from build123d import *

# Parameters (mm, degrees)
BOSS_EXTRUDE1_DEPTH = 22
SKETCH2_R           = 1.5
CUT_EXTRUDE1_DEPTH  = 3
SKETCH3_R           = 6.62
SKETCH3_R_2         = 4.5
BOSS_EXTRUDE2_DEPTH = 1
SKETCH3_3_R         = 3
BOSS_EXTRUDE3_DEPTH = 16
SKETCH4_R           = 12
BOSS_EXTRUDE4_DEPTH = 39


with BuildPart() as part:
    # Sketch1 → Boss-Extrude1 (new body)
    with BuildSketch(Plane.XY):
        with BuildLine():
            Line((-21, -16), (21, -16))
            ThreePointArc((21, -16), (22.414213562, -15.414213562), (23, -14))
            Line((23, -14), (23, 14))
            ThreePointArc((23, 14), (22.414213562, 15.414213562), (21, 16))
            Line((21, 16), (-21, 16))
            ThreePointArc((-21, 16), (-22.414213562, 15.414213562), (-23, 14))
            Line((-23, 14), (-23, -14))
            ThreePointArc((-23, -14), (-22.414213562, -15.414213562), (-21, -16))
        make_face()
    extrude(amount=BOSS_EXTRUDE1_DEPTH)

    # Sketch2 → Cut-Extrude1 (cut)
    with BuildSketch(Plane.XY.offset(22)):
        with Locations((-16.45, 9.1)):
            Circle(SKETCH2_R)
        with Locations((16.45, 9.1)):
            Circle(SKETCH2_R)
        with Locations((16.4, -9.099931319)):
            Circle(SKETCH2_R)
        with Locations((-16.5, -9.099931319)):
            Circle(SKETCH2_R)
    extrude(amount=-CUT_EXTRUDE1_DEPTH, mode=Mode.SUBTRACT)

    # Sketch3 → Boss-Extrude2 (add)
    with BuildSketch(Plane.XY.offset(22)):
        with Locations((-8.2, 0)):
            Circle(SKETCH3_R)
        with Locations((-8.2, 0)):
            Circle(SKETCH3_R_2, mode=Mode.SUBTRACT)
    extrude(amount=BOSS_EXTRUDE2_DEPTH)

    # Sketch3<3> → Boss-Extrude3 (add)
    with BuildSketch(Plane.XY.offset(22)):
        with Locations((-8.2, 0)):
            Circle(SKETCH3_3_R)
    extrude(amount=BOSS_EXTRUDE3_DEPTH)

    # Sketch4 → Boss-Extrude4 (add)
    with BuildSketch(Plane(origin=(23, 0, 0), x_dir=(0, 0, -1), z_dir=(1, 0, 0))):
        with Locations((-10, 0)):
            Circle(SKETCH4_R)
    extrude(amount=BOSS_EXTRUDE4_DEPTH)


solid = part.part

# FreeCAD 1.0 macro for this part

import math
import FreeCAD as App
import Part
import Sketcher

doc = App.newDocument("Part")
body = doc.addObject("PartDesign::Body", "Body")

# Sketch on XY plane
sketch1 = doc.addObject("Sketcher::SketchObject", "Sketch")
body.addObject(sketch1)
sketch1.AttachmentSupport = (doc.XY_Plane, [""])
sketch1.MapMode = "FlatFace"
sketch1.addGeometry(Part.LineSegment(App.Vector(-21, -16, 0), App.Vector(21, -16, 0)), False)
sketch1.addGeometry(Part.ArcOfCircle(Part.Circle(App.Vector(21, -14, 0), App.Vector(0, 0, 1), 2), math.radians(-90), math.radians(0)), False)
sketch1.addGeometry(Part.LineSegment(App.Vector(23, -14, 0), App.Vector(23, 14, 0)), False)
sketch1.addGeometry(Part.ArcOfCircle(Part.Circle(App.Vector(21, 14, 0), App.Vector(0, 0, 1), 2), math.radians(0), math.radians(90)), False)
sketch1.addGeometry(Part.LineSegment(App.Vector(21, 16, 0), App.Vector(-21, 16, 0)), False)
sketch1.addGeometry(Part.ArcOfCircle(Part.Circle(App.Vector(-21, 14, 0), App.Vector(0, 0, 1), 2), math.radians(90), math.radians(180)), False)
sketch1.addGeometry(Part.LineSegment(App.Vector(-23, 14, 0), App.Vector(-23, -14, 0)), False)
sketch1.addGeometry(Part.ArcOfCircle(Part.Circle(App.Vector(-21, -14, 0), App.Vector(0, 0, 1), 2), math.radians(-180), math.radians(-90)), False)
sketch1.addConstraint(Sketcher.Constraint("Tangent", 0, 2, 1, 1))
sketch1.addConstraint(Sketcher.Constraint("Tangent", 1, 2, 2, 1))
sketch1.addConstraint(Sketcher.Constraint("Tangent", 2, 2, 3, 1))
sketch1.addConstraint(Sketcher.Constraint("Tangent", 3, 2, 4, 1))
sketch1.addConstraint(Sketcher.Constraint("Tangent", 4, 2, 5, 1))
sketch1.addConstraint(Sketcher.Constraint("Tangent", 5, 2, 6, 1))
sketch1.addConstraint(Sketcher.Constraint("Tangent", 6, 2, 7, 1))
sketch1.addConstraint(Sketcher.Constraint("Tangent", 7, 2, 0, 1))
sketch1.addConstraint(Sketcher.Constraint("Horizontal", 0))
sketch1.addConstraint(Sketcher.Constraint("Vertical", 2))
sketch1.addConstraint(Sketcher.Constraint("Horizontal", 4))
sketch1.addConstraint(Sketcher.Constraint("Vertical", 6))
sketch1.addConstraint(Sketcher.Constraint("Equal", 1, 3))
sketch1.addConstraint(Sketcher.Constraint("Equal", 3, 5))
sketch1.addConstraint(Sketcher.Constraint("Equal", 5, 7))
sketch1.addConstraint(Sketcher.Constraint("Symmetric", 1, 3, 5, 3, -1, 1))
sketch1.addConstraint(Sketcher.Constraint("Radius", 1, 2.0))
sketch1.addConstraint(Sketcher.Constraint("DistanceX", 0, 1, 0, 2, 42.0))
sketch1.addConstraint(Sketcher.Constraint("DistanceY", 2, 1, 2, 2, 28.0))
pad1 = doc.addObject("PartDesign::Pad", "Pad")
body.addObject(pad1)
pad1.Profile = sketch1
pad1.Length = 22

# Sketch on XY plane
sketch2 = doc.addObject("Sketcher::SketchObject", "Sketch001")
body.addObject(sketch2)
sketch2.AttachmentSupport = (doc.XY_Plane, [""])
sketch2.MapMode = "FlatFace"
sketch2.AttachmentOffset = App.Placement(App.Vector(0, 0, 22), App.Rotation())
sketch2.addGeometry(Part.Circle(App.Vector(-16.4, 9.1, 0), App.Vector(0, 0, 1), 1.5), False)
sketch2.addGeometry(Part.Circle(App.Vector(16.4, 9.1, 0), App.Vector(0, 0, 1), 1.5), False)
sketch2.addGeometry(Part.Circle(App.Vector(16.4, -9.1, 0), App.Vector(0, 0, 1), 1.5), False)
sketch2.addGeometry(Part.Circle(App.Vector(-16.5, -9.1, 0), App.Vector(0, 0, 1), 1.5), False)
sketch2.addConstraint(Sketcher.Constraint("Equal", 0, 1))
sketch2.addConstraint(Sketcher.Constraint("Equal", 1, 2))
sketch2.addConstraint(Sketcher.Constraint("Equal", 2, 3))
sketch2.addConstraint(Sketcher.Constraint("Symmetric", 0, 3, 1, 3, -2))
sketch2.addConstraint(Sketcher.Constraint("Horizontal", 2, 3, 3, 3))
sketch2.addConstraint(Sketcher.Constraint("Diameter", 0, 3.0))
sketch2.addConstraint(Sketcher.Constraint("DistanceY", -1, 1, 0, 3, 9.1))
sketch2.addConstraint(Sketcher.Constraint("DistanceX", -1, 1, 2, 3, 16.4))
sketch2.addConstraint(Sketcher.Constraint("DistanceX", 3, 3, -1, 1, 16.5))
sketch2.addConstraint(Sketcher.Constraint("DistanceX", 0, 3, 1, 3, 32.9))
sketch2.addConstraint(Sketcher.Constraint("DistanceY", 2, 3, -1, 1, 9.099931))
pocket1 = doc.addObject("PartDesign::Pocket", "Pocket")
body.addObject(pocket1)
pocket1.Profile = sketch2
pocket1.Length = 3

# Sketch on XY plane
sketch3 = doc.addObject("Sketcher::SketchObject", "Sketch002")
body.addObject(sketch3)
sketch3.AttachmentSupport = (doc.XY_Plane, [""])
sketch3.MapMode = "FlatFace"
sketch3.AttachmentOffset = App.Placement(App.Vector(0, 0, 22), App.Rotation())
sketch3.addGeometry(Part.Circle(App.Vector(-8.2, 0, 0), App.Vector(0, 0, 1), 6.6), False)
sketch3.addGeometry(Part.Circle(App.Vector(-8.2, 0, 0), App.Vector(0, 0, 1), 4.5), False)
sketch3.addConstraint(Sketcher.Constraint("Coincident", 1, 3, 0, 3))
sketch3.addConstraint(Sketcher.Constraint("PointOnObject", 0, 3, -1))
sketch3.addConstraint(Sketcher.Constraint("Diameter", 1, 9.0))
sketch3.addConstraint(Sketcher.Constraint("Diameter", 0, 13.24))
sketch3.addConstraint(Sketcher.Constraint("DistanceX", 0, 3, -1, 1, 8.2))
pad2 = doc.addObject("PartDesign::Pad", "Pad001")
body.addObject(pad2)
pad2.Profile = sketch3
pad2.Length = 1

# Sketch on XY plane
sketch4 = doc.addObject("Sketcher::SketchObject", "Sketch003")
body.addObject(sketch4)
sketch4.AttachmentSupport = (doc.XY_Plane, [""])
sketch4.MapMode = "FlatFace"
sketch4.AttachmentOffset = App.Placement(App.Vector(0, 0, 22), App.Rotation())
sketch4.addGeometry(Part.Circle(App.Vector(-8.2, 0, 0), App.Vector(0, 0, 1), 3), False)
sketch4.addConstraint(Sketcher.Constraint("PointOnObject", 0, 3, -1))
sketch4.addConstraint(Sketcher.Constraint("Diameter", 0, 6.0))
sketch4.addConstraint(Sketcher.Constraint("DistanceX", 0, 3, -1, 1, 8.2))
pad3 = doc.addObject("PartDesign::Pad", "Pad002")
body.addObject(pad3)
pad3.Profile = sketch4
pad3.Length = 16

# Sketch on YZ plane
sketch5 = doc.addObject("Sketcher::SketchObject", "Sketch004")
body.addObject(sketch5)
sketch5.AttachmentSupport = (doc.YZ_Plane, [""])
sketch5.MapMode = "FlatFace"
sketch5.AttachmentOffset = App.Placement(App.Vector(0, 0, 23), App.Rotation())
sketch5.addGeometry(Part.Circle(App.Vector(0, 10, 0), App.Vector(0, 0, 1), 12), False)
sketch5.addConstraint(Sketcher.Constraint("PointOnObject", 0, 3, -2))
sketch5.addConstraint(Sketcher.Constraint("Diameter", 0, 24.0))
sketch5.addConstraint(Sketcher.Constraint("DistanceY", -1, 1, 0, 3, 10.0))
pad4 = doc.addObject("PartDesign::Pad", "Pad003")
body.addObject(pad4)
pad4.Profile = sketch5
pad4.Length = 39

doc.recompute()
